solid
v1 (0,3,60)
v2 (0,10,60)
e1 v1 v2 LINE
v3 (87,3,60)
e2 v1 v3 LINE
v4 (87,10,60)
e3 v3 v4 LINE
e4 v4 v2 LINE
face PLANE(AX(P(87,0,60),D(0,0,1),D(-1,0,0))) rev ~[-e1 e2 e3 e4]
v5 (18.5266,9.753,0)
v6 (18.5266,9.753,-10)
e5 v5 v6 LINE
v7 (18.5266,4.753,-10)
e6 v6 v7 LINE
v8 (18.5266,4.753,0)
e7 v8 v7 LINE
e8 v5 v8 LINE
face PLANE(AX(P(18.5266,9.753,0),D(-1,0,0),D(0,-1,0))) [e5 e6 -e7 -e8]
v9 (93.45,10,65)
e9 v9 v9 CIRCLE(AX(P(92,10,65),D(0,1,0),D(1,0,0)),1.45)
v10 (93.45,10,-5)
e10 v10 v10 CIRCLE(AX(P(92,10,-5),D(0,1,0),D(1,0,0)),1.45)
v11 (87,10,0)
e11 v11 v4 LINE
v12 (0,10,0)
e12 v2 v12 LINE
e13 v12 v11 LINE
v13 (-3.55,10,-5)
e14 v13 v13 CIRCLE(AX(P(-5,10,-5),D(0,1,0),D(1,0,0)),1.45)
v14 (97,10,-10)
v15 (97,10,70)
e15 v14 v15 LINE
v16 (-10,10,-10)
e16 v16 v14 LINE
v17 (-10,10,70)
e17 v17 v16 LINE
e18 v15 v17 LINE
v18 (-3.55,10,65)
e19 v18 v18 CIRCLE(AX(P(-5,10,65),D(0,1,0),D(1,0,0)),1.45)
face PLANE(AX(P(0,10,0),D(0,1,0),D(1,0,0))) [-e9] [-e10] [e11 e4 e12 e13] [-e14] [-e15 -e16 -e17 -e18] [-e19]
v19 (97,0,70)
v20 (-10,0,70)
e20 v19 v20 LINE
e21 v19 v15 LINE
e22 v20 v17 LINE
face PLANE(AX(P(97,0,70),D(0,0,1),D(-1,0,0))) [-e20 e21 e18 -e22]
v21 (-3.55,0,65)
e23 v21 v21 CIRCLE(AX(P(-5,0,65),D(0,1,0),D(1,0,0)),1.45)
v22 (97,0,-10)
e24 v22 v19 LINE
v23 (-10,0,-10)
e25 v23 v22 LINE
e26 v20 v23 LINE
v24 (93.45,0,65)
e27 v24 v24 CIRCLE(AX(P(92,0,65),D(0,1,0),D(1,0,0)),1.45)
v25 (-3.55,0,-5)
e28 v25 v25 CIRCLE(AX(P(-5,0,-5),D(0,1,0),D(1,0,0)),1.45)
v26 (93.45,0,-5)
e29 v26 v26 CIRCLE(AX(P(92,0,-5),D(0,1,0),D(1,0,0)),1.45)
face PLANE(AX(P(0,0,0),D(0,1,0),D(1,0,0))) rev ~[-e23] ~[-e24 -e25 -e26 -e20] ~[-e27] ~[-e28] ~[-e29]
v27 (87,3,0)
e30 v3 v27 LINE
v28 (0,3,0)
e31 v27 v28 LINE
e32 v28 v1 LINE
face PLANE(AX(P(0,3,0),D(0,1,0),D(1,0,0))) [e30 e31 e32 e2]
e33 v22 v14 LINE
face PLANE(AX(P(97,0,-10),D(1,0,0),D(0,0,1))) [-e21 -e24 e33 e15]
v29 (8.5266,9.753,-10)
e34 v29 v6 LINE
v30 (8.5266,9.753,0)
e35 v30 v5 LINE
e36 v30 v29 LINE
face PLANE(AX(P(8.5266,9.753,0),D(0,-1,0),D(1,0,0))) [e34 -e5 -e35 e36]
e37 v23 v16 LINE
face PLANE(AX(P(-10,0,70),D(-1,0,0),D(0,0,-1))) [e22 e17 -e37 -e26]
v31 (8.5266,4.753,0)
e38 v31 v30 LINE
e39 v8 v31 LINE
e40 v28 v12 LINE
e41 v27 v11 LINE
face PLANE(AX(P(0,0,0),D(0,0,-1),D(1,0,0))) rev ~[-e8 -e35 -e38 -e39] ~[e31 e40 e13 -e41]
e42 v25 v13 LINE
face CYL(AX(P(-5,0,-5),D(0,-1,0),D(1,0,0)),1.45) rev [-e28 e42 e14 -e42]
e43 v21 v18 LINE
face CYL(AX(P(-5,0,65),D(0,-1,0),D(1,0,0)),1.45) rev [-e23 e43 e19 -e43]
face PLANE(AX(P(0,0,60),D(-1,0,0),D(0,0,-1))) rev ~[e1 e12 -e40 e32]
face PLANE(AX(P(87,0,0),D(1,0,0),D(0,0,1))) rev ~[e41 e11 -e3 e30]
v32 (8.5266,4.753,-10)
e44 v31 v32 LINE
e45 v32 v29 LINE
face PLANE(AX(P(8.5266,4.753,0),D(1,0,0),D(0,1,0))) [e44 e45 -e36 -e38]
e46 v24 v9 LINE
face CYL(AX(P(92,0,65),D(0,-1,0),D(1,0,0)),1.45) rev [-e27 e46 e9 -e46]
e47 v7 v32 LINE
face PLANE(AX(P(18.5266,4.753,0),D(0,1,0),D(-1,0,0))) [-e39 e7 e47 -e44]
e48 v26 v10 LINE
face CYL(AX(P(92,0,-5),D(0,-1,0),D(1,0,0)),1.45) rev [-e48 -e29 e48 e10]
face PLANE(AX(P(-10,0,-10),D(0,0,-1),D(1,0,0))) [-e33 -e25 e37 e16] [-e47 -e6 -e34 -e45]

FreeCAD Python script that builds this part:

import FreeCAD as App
import Part
import Sketcher

V = App.Vector
Q = App.Units.Quantity

doc = App.newDocument("Part")
body = doc.addObject("PartDesign::Body", "Body")

sketch1 = body.newObject("Sketcher::SketchObject", "Sketch")
sketch1.AttachmentSupport = (doc.getObject("XZ_Plane"), [""])
sketch1.MapMode = "FlatFace"
sketch1.addGeometry([
    Part.LineSegment(V(97, -10, 0), V(-10, -10, 0)),
    Part.LineSegment(V(-10, -10, 0), V(-10, 70, 0)),
    Part.LineSegment(V(-10, 70, 0), V(97, 70, 0)),
    Part.LineSegment(V(97, 70, 0), V(97, -10, 0)),
    Part.Circle(V(-5, 65, 0), V(0, 0, 1), 1.4),
    Part.Circle(V(92, 65, 0), V(0, 0, 1), 1.4),
    Part.Circle(V(-5, -5, 0), V(0, 0, 1), 1.4),
    Part.Circle(V(92, -5, 0), V(0, 0, 1), 1.4),
], False)
sketch1.addConstraint([
    Sketcher.Constraint("Coincident", 0, 2, 1, 1),
    Sketcher.Constraint("Coincident", 1, 2, 2, 1),
    Sketcher.Constraint("Coincident", 2, 2, 3, 1),
    Sketcher.Constraint("Coincident", 3, 2, 0, 1),
    Sketcher.Constraint("Horizontal", 0),
    Sketcher.Constraint("Vertical", 1),
    Sketcher.Constraint("Horizontal", 2),
    Sketcher.Constraint("Vertical", 3),
    Sketcher.Constraint("Equal", 4, 5),
    Sketcher.Constraint("Equal", 5, 6),
    Sketcher.Constraint("Equal", 6, 7),
    Sketcher.Constraint("Horizontal", 4, 3, 5, 3),
    Sketcher.Constraint("Horizontal", 6, 3, 7, 3),
    Sketcher.Constraint("Vertical", 4, 3, 6, 3),
    Sketcher.Constraint("Vertical", 5, 3, 7, 3),
    Sketcher.Constraint("Diameter", 4, Q("2.9 mm")),
    Sketcher.Constraint("DistanceX", 0, 2, 0, 1, Q("107 mm")),
    Sketcher.Constraint("DistanceY", 1, 1, 1, 2, Q("80 mm")),
    Sketcher.Constraint("DistanceX", 4, 3, -1, 1, Q("5 mm")),
    Sketcher.Constraint("DistanceY", 6, 3, -1, 1, Q("5 mm")),
    Sketcher.Constraint("DistanceX", 0, 2, -1, 1, Q("10 mm")),
    Sketcher.Constraint("DistanceY", 0, 2, -1, 1, Q("10 mm")),
    Sketcher.Constraint("DistanceY", 4, 3, 1, 2, Q("5 mm")),
    Sketcher.Constraint("DistanceX", 5, 3, 2, 2, Q("5 mm")),
])
pad1 = body.newObject("PartDesign::Pad", "Pad")
pad1.Profile = sketch1
pad1.Length = 3
pad1.Reversed = True

sketch2 = body.newObject("Sketcher::SketchObject", "Sketch001")
sketch2.AttachmentSupport = (doc.getObject("XZ_Plane"), [""])
sketch2.MapMode = "FlatFace"
sketch2.addGeometry([
    Part.LineSegment(V(97, -10, 0), V(-10, -10, 0)),
    Part.LineSegment(V(-10, -10, 0), V(-10, 70, 0)),
    Part.LineSegment(V(-10, 70, 0), V(97, 70, 0)),
    Part.LineSegment(V(97, 70, 0), V(97, -10, 0)),
    Part.Circle(V(-5, 65, 0), V(0, 0, 1), 1.4),
    Part.Circle(V(92, 65, 0), V(0, 0, 1), 1.4),
    Part.LineSegment(V(0, 60, 0), V(0, 0, 0)),
    Part.LineSegment(V(0, 0, 0), V(87, 0, 0)),
    Part.LineSegment(V(87, 0, 0), V(87, 60, 0)),
    Part.LineSegment(V(87, 60, 0), V(0, 60, 0)),
    Part.Circle(V(-5, -5, 0), V(0, 0, 1), 1.4),
    Part.Circle(V(92, -5, 0), V(0, 0, 1), 1.4),
], False)
sketch2.addConstraint([
    Sketcher.Constraint("Coincident", 0, 2, 1, 1),
    Sketcher.Constraint("Coincident", 1, 2, 2, 1),
    Sketcher.Constraint("Coincident", 2, 2, 3, 1),
    Sketcher.Constraint("Coincident", 3, 2, 0, 1),
    Sketcher.Constraint("Coincident", 6, 2, 7, 1),
    Sketcher.Constraint("Coincident", 7, 2, 8, 1),
    Sketcher.Constraint("Coincident", 8, 2, 9, 1),
    Sketcher.Constraint("Coincident", 9, 2, 6, 1),
    Sketcher.Constraint("Horizontal", 0),
    Sketcher.Constraint("Vertical", 1),
    Sketcher.Constraint("Horizontal", 2),
    Sketcher.Constraint("Vertical", 3),
    Sketcher.Constraint("Vertical", 6),
    Sketcher.Constraint("Horizontal", 7),
    Sketcher.Constraint("Vertical", 8),
    Sketcher.Constraint("Horizontal", 9),
    Sketcher.Constraint("Coincident", 6, 2, -1, 1),
    Sketcher.Constraint("Equal", 4, 5),
    Sketcher.Constraint("Equal", 5, 10),
    Sketcher.Constraint("Equal", 10, 11),
    Sketcher.Constraint("Horizontal", 4, 3, 5, 3),
    Sketcher.Constraint("Horizontal", 10, 3, 11, 3),
    Sketcher.Constraint("Vertical", 4, 3, 10, 3),
    Sketcher.Constraint("Vertical", 5, 3, 11, 3),
    Sketcher.Constraint("Diameter", 4, Q("2.9 mm")),
    Sketcher.Constraint("DistanceX", 0, 2, 0, 1, Q("107 mm")),
    Sketcher.Constraint("DistanceX", 7, 1, 7, 2, Q("87 mm")),
    Sketcher.Constraint("DistanceY", 1, 1, 1, 2, Q("80 mm")),
    Sketcher.Constraint("DistanceY", 6, 2, 6, 1, Q("60 mm")),
    Sketcher.Constraint("DistanceX", 4, 3, -1, 1, Q("5 mm")),
    Sketcher.Constraint("DistanceY", 10, 3, -1, 1, Q("5 mm")),
    Sketcher.Constraint("DistanceX", 0, 2, -1, 1, Q("10 mm")),
    Sketcher.Constraint("DistanceY", 0, 2, -1, 1, Q("10 mm")),
    Sketcher.Constraint("DistanceY", 4, 3, 1, 2, Q("5 mm")),
    Sketcher.Constraint("DistanceX", 5, 3, 2, 2, Q("5 mm")),
])
pocket1 = body.newObject("PartDesign::Pocket", "Pocket")
pocket1.Profile = sketch2
pocket1.Length = 10

sketch3 = body.newObject("Sketcher::SketchObject", "Sketch002")
sketch3.AttachmentSupport = (doc.getObject("XZ_Plane"), [""])
sketch3.MapMode = "FlatFace"
sketch3.addGeometry([
    Part.LineSegment(V(97, -10, 0), V(-10, -10, 0)),
    Part.LineSegment(V(-10, -10, 0), V(-10, 70, 0)),
    Part.LineSegment(V(-10, 70, 0), V(97, 70, 0)),
    Part.LineSegment(V(97, 70, 0), V(97, -10, 0)),
    Part.Circle(V(-5, 65, 0), V(0, 0, 1), 1.4),
    Part.Circle(V(92, 65, 0), V(0, 0, 1), 1.4),
    Part.LineSegment(V(0, 60, 0), V(0, 0, 0)),
    Part.LineSegment(V(0, 0, 0), V(87, 0, 0)),
    Part.LineSegment(V(87, 0, 0), V(87, 60, 0)),
    Part.LineSegment(V(87, 60, 0), V(0, 60, 0)),
    Part.Circle(V(-5, -5, 0), V(0, 0, 1), 1.4),
    Part.Circle(V(92, -5, 0), V(0, 0, 1), 1.4),
], False)
sketch3.addConstraint([
    Sketcher.Constraint("Coincident", 0, 2, 1, 1),
    Sketcher.Constraint("Coincident", 1, 2, 2, 1),
    Sketcher.Constraint("Coincident", 2, 2, 3, 1),
    Sketcher.Constraint("Coincident", 3, 2, 0, 1),
    Sketcher.Constraint("Coincident", 6, 2, 7, 1),
    Sketcher.Constraint("Coincident", 7, 2, 8, 1),
    Sketcher.Constraint("Coincident", 8, 2, 9, 1),
    Sketcher.Constraint("Coincident", 9, 2, 6, 1),
    Sketcher.Constraint("Horizontal", 0),
    Sketcher.Constraint("Vertical", 1),
    Sketcher.Constraint("Horizontal", 2),
    Sketcher.Constraint("Vertical", 3),
    Sketcher.Constraint("Vertical", 6),
    Sketcher.Constraint("Horizontal", 7),
    Sketcher.Constraint("Vertical", 8),
    Sketcher.Constraint("Horizontal", 9),
    Sketcher.Constraint("Coincident", 6, 2, -1, 1),
    Sketcher.Constraint("Equal", 4, 5),
    Sketcher.Constraint("Equal", 5, 10),
    Sketcher.Constraint("Equal", 10, 11),
    Sketcher.Constraint("Horizontal", 4, 3, 5, 3),
    Sketcher.Constraint("Horizontal", 10, 3, 11, 3),
    Sketcher.Constraint("Vertical", 4, 3, 10, 3),
    Sketcher.Constraint("Vertical", 5, 3, 11, 3),
    Sketcher.Constraint("Diameter", 4, Q("2.9 mm")),
    Sketcher.Constraint("DistanceX", 0, 2, 0, 1, Q("107 mm")),
    Sketcher.Constraint("DistanceX", 7, 1, 7, 2, Q("87 mm")),
    Sketcher.Constraint("DistanceY", 1, 1, 1, 2, Q("80 mm")),
    Sketcher.Constraint("DistanceY", 6, 2, 6, 1, Q("60 mm")),
    Sketcher.Constraint("DistanceX", 4, 3, -1, 1, Q("5 mm")),
    Sketcher.Constraint("DistanceY", 10, 3, -1, 1, Q("5 mm")),
    Sketcher.Constraint("DistanceX", 0, 2, -1, 1, Q("10 mm")),
    Sketcher.Constraint("DistanceY", 0, 2, -1, 1, Q("10 mm")),
    Sketcher.Constraint("DistanceY", 4, 3, 1, 2, Q("5 mm")),
    Sketcher.Constraint("DistanceX", 5, 3, 2, 2, Q("5 mm")),
])
pad2 = body.newObject("PartDesign::Pad", "Pad001")
pad2.Profile = sketch3
pad2.Length = 10
pad2.Reversed = True

sketch4 = body.newObject("Sketcher::SketchObject", "Sketch003")
sketch4.AttachmentSupport = (doc.getObject("XY_Plane"), [""])
sketch4.MapMode = "FlatFace"
sketch4.addGeometry([
    Part.LineSegment(V(19, 10, 0), V(9, 10, 0)),
    Part.LineSegment(V(9, 10, 0), V(9, 5, 0)),
    Part.LineSegment(V(9, 5, 0), V(19, 5, 0)),
    Part.LineSegment(V(19, 5, 0), V(19, 10, 0)),
], False)
sketch4.addConstraint([
    Sketcher.Constraint("Coincident", 0, 2, 1, 1),
    Sketcher.Constraint("Coincident", 1, 2, 2, 1),
    Sketcher.Constraint("Coincident", 2, 2, 3, 1),
    Sketcher.Constraint("Coincident", 3, 2, 0, 1),
    Sketcher.Constraint("Horizontal", 0),
    Sketcher.Constraint("Vertical", 1),
    Sketcher.Constraint("Horizontal", 2),
    Sketcher.Constraint("Vertical", 3),
    Sketcher.Constraint("DistanceX", 0, 2, 0, 1, Q("10 mm")),
    Sketcher.Constraint("DistanceY", 1, 2, 1, 1, Q("5 mm")),
    Sketcher.Constraint("DistanceY", -1, 1, 0, 2, Q("9.753 mm")),
    Sketcher.Constraint("DistanceX", -1, 1, 0, 2, Q("8.5266 mm")),
])
pocket2 = body.newObject("PartDesign::Pocket", "Pocket001")
pocket2.Profile = sketch4
pocket2.Length = 10

doc.recompute()
